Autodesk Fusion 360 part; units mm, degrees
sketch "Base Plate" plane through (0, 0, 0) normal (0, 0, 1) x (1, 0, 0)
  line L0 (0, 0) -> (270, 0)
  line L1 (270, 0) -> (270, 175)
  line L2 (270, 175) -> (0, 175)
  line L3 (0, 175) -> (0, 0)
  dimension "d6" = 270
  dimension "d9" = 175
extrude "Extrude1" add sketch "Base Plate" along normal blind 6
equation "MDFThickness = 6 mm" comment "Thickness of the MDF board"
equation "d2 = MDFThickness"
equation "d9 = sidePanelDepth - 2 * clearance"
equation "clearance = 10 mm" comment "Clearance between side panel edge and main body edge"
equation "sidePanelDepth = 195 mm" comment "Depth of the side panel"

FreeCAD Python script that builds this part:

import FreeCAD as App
import Part
import Sketcher
Q = App.Units.Quantity

doc = App.newDocument("Part")
params = doc.addObject("Spreadsheet::Sheet", "Params")
for row, (alias, value) in enumerate([
    ("sketch1_width", "270 mm"),
    ("sketch1_height", "175 mm"),
    ("pad1_length", "6 mm"),
], start=1):
    params.set(f"A{row}", alias)
    params.set(f"B{row}", "=" + value)
    params.setAlias(f"B{row}", alias)

body = doc.addObject("PartDesign::Body", "Body")

# Sketch on XY plane
sketch1 = doc.addObject("Sketcher::SketchObject", "Sketch")
body.addObject(sketch1)
sketch1.AttachmentSupport = (doc.XY_Plane, [""])
sketch1.MapMode = "FlatFace"
sketch1.addGeometry(Part.LineSegment(App.Vector(0, 175, 0), App.Vector(0, 0, 0)), False)
sketch1.addGeometry(Part.LineSegment(App.Vector(0, 0, 0), App.Vector(270, 0, 0)), False)
sketch1.addGeometry(Part.LineSegment(App.Vector(270, 0, 0), App.Vector(270, 175, 0)), False)
sketch1.addGeometry(Part.LineSegment(App.Vector(270, 175, 0), App.Vector(0, 175, 0)), False)
sketch1.addConstraint(Sketcher.Constraint("Coincident", 0, 2, 1, 1))
sketch1.addConstraint(Sketcher.Constraint("Coincident", 1, 2, 2, 1))
sketch1.addConstraint(Sketcher.Constraint("Coincident", 2, 2, 3, 1))
sketch1.addConstraint(Sketcher.Constraint("Coincident", 3, 2, 0, 1))
sketch1.addConstraint(Sketcher.Constraint("Vertical", 0))
sketch1.addConstraint(Sketcher.Constraint("Horizontal", 1))
sketch1.addConstraint(Sketcher.Constraint("Vertical", 2))
sketch1.addConstraint(Sketcher.Constraint("Horizontal", 3))
sketch1.addConstraint(Sketcher.Constraint("Coincident", 0, 2, -1, 1))
sketch1.addConstraint(Sketcher.Constraint("DistanceX", 1, 1, 1, 2, Q("270 mm")))
sketch1.addConstraint(Sketcher.Constraint("DistanceY", 0, 2, 0, 1, Q("175 mm")))
sketch1.setExpression("Constraints[9]", "Params.sketch1_width")
sketch1.setExpression("Constraints[10]", "Params.sketch1_height")
pad1 = doc.addObject("PartDesign::Pad", "Pad")
body.addObject(pad1)
pad1.Profile = sketch1
pad1.setExpression("Length", "Params.pad1_length")

doc.recompute()
